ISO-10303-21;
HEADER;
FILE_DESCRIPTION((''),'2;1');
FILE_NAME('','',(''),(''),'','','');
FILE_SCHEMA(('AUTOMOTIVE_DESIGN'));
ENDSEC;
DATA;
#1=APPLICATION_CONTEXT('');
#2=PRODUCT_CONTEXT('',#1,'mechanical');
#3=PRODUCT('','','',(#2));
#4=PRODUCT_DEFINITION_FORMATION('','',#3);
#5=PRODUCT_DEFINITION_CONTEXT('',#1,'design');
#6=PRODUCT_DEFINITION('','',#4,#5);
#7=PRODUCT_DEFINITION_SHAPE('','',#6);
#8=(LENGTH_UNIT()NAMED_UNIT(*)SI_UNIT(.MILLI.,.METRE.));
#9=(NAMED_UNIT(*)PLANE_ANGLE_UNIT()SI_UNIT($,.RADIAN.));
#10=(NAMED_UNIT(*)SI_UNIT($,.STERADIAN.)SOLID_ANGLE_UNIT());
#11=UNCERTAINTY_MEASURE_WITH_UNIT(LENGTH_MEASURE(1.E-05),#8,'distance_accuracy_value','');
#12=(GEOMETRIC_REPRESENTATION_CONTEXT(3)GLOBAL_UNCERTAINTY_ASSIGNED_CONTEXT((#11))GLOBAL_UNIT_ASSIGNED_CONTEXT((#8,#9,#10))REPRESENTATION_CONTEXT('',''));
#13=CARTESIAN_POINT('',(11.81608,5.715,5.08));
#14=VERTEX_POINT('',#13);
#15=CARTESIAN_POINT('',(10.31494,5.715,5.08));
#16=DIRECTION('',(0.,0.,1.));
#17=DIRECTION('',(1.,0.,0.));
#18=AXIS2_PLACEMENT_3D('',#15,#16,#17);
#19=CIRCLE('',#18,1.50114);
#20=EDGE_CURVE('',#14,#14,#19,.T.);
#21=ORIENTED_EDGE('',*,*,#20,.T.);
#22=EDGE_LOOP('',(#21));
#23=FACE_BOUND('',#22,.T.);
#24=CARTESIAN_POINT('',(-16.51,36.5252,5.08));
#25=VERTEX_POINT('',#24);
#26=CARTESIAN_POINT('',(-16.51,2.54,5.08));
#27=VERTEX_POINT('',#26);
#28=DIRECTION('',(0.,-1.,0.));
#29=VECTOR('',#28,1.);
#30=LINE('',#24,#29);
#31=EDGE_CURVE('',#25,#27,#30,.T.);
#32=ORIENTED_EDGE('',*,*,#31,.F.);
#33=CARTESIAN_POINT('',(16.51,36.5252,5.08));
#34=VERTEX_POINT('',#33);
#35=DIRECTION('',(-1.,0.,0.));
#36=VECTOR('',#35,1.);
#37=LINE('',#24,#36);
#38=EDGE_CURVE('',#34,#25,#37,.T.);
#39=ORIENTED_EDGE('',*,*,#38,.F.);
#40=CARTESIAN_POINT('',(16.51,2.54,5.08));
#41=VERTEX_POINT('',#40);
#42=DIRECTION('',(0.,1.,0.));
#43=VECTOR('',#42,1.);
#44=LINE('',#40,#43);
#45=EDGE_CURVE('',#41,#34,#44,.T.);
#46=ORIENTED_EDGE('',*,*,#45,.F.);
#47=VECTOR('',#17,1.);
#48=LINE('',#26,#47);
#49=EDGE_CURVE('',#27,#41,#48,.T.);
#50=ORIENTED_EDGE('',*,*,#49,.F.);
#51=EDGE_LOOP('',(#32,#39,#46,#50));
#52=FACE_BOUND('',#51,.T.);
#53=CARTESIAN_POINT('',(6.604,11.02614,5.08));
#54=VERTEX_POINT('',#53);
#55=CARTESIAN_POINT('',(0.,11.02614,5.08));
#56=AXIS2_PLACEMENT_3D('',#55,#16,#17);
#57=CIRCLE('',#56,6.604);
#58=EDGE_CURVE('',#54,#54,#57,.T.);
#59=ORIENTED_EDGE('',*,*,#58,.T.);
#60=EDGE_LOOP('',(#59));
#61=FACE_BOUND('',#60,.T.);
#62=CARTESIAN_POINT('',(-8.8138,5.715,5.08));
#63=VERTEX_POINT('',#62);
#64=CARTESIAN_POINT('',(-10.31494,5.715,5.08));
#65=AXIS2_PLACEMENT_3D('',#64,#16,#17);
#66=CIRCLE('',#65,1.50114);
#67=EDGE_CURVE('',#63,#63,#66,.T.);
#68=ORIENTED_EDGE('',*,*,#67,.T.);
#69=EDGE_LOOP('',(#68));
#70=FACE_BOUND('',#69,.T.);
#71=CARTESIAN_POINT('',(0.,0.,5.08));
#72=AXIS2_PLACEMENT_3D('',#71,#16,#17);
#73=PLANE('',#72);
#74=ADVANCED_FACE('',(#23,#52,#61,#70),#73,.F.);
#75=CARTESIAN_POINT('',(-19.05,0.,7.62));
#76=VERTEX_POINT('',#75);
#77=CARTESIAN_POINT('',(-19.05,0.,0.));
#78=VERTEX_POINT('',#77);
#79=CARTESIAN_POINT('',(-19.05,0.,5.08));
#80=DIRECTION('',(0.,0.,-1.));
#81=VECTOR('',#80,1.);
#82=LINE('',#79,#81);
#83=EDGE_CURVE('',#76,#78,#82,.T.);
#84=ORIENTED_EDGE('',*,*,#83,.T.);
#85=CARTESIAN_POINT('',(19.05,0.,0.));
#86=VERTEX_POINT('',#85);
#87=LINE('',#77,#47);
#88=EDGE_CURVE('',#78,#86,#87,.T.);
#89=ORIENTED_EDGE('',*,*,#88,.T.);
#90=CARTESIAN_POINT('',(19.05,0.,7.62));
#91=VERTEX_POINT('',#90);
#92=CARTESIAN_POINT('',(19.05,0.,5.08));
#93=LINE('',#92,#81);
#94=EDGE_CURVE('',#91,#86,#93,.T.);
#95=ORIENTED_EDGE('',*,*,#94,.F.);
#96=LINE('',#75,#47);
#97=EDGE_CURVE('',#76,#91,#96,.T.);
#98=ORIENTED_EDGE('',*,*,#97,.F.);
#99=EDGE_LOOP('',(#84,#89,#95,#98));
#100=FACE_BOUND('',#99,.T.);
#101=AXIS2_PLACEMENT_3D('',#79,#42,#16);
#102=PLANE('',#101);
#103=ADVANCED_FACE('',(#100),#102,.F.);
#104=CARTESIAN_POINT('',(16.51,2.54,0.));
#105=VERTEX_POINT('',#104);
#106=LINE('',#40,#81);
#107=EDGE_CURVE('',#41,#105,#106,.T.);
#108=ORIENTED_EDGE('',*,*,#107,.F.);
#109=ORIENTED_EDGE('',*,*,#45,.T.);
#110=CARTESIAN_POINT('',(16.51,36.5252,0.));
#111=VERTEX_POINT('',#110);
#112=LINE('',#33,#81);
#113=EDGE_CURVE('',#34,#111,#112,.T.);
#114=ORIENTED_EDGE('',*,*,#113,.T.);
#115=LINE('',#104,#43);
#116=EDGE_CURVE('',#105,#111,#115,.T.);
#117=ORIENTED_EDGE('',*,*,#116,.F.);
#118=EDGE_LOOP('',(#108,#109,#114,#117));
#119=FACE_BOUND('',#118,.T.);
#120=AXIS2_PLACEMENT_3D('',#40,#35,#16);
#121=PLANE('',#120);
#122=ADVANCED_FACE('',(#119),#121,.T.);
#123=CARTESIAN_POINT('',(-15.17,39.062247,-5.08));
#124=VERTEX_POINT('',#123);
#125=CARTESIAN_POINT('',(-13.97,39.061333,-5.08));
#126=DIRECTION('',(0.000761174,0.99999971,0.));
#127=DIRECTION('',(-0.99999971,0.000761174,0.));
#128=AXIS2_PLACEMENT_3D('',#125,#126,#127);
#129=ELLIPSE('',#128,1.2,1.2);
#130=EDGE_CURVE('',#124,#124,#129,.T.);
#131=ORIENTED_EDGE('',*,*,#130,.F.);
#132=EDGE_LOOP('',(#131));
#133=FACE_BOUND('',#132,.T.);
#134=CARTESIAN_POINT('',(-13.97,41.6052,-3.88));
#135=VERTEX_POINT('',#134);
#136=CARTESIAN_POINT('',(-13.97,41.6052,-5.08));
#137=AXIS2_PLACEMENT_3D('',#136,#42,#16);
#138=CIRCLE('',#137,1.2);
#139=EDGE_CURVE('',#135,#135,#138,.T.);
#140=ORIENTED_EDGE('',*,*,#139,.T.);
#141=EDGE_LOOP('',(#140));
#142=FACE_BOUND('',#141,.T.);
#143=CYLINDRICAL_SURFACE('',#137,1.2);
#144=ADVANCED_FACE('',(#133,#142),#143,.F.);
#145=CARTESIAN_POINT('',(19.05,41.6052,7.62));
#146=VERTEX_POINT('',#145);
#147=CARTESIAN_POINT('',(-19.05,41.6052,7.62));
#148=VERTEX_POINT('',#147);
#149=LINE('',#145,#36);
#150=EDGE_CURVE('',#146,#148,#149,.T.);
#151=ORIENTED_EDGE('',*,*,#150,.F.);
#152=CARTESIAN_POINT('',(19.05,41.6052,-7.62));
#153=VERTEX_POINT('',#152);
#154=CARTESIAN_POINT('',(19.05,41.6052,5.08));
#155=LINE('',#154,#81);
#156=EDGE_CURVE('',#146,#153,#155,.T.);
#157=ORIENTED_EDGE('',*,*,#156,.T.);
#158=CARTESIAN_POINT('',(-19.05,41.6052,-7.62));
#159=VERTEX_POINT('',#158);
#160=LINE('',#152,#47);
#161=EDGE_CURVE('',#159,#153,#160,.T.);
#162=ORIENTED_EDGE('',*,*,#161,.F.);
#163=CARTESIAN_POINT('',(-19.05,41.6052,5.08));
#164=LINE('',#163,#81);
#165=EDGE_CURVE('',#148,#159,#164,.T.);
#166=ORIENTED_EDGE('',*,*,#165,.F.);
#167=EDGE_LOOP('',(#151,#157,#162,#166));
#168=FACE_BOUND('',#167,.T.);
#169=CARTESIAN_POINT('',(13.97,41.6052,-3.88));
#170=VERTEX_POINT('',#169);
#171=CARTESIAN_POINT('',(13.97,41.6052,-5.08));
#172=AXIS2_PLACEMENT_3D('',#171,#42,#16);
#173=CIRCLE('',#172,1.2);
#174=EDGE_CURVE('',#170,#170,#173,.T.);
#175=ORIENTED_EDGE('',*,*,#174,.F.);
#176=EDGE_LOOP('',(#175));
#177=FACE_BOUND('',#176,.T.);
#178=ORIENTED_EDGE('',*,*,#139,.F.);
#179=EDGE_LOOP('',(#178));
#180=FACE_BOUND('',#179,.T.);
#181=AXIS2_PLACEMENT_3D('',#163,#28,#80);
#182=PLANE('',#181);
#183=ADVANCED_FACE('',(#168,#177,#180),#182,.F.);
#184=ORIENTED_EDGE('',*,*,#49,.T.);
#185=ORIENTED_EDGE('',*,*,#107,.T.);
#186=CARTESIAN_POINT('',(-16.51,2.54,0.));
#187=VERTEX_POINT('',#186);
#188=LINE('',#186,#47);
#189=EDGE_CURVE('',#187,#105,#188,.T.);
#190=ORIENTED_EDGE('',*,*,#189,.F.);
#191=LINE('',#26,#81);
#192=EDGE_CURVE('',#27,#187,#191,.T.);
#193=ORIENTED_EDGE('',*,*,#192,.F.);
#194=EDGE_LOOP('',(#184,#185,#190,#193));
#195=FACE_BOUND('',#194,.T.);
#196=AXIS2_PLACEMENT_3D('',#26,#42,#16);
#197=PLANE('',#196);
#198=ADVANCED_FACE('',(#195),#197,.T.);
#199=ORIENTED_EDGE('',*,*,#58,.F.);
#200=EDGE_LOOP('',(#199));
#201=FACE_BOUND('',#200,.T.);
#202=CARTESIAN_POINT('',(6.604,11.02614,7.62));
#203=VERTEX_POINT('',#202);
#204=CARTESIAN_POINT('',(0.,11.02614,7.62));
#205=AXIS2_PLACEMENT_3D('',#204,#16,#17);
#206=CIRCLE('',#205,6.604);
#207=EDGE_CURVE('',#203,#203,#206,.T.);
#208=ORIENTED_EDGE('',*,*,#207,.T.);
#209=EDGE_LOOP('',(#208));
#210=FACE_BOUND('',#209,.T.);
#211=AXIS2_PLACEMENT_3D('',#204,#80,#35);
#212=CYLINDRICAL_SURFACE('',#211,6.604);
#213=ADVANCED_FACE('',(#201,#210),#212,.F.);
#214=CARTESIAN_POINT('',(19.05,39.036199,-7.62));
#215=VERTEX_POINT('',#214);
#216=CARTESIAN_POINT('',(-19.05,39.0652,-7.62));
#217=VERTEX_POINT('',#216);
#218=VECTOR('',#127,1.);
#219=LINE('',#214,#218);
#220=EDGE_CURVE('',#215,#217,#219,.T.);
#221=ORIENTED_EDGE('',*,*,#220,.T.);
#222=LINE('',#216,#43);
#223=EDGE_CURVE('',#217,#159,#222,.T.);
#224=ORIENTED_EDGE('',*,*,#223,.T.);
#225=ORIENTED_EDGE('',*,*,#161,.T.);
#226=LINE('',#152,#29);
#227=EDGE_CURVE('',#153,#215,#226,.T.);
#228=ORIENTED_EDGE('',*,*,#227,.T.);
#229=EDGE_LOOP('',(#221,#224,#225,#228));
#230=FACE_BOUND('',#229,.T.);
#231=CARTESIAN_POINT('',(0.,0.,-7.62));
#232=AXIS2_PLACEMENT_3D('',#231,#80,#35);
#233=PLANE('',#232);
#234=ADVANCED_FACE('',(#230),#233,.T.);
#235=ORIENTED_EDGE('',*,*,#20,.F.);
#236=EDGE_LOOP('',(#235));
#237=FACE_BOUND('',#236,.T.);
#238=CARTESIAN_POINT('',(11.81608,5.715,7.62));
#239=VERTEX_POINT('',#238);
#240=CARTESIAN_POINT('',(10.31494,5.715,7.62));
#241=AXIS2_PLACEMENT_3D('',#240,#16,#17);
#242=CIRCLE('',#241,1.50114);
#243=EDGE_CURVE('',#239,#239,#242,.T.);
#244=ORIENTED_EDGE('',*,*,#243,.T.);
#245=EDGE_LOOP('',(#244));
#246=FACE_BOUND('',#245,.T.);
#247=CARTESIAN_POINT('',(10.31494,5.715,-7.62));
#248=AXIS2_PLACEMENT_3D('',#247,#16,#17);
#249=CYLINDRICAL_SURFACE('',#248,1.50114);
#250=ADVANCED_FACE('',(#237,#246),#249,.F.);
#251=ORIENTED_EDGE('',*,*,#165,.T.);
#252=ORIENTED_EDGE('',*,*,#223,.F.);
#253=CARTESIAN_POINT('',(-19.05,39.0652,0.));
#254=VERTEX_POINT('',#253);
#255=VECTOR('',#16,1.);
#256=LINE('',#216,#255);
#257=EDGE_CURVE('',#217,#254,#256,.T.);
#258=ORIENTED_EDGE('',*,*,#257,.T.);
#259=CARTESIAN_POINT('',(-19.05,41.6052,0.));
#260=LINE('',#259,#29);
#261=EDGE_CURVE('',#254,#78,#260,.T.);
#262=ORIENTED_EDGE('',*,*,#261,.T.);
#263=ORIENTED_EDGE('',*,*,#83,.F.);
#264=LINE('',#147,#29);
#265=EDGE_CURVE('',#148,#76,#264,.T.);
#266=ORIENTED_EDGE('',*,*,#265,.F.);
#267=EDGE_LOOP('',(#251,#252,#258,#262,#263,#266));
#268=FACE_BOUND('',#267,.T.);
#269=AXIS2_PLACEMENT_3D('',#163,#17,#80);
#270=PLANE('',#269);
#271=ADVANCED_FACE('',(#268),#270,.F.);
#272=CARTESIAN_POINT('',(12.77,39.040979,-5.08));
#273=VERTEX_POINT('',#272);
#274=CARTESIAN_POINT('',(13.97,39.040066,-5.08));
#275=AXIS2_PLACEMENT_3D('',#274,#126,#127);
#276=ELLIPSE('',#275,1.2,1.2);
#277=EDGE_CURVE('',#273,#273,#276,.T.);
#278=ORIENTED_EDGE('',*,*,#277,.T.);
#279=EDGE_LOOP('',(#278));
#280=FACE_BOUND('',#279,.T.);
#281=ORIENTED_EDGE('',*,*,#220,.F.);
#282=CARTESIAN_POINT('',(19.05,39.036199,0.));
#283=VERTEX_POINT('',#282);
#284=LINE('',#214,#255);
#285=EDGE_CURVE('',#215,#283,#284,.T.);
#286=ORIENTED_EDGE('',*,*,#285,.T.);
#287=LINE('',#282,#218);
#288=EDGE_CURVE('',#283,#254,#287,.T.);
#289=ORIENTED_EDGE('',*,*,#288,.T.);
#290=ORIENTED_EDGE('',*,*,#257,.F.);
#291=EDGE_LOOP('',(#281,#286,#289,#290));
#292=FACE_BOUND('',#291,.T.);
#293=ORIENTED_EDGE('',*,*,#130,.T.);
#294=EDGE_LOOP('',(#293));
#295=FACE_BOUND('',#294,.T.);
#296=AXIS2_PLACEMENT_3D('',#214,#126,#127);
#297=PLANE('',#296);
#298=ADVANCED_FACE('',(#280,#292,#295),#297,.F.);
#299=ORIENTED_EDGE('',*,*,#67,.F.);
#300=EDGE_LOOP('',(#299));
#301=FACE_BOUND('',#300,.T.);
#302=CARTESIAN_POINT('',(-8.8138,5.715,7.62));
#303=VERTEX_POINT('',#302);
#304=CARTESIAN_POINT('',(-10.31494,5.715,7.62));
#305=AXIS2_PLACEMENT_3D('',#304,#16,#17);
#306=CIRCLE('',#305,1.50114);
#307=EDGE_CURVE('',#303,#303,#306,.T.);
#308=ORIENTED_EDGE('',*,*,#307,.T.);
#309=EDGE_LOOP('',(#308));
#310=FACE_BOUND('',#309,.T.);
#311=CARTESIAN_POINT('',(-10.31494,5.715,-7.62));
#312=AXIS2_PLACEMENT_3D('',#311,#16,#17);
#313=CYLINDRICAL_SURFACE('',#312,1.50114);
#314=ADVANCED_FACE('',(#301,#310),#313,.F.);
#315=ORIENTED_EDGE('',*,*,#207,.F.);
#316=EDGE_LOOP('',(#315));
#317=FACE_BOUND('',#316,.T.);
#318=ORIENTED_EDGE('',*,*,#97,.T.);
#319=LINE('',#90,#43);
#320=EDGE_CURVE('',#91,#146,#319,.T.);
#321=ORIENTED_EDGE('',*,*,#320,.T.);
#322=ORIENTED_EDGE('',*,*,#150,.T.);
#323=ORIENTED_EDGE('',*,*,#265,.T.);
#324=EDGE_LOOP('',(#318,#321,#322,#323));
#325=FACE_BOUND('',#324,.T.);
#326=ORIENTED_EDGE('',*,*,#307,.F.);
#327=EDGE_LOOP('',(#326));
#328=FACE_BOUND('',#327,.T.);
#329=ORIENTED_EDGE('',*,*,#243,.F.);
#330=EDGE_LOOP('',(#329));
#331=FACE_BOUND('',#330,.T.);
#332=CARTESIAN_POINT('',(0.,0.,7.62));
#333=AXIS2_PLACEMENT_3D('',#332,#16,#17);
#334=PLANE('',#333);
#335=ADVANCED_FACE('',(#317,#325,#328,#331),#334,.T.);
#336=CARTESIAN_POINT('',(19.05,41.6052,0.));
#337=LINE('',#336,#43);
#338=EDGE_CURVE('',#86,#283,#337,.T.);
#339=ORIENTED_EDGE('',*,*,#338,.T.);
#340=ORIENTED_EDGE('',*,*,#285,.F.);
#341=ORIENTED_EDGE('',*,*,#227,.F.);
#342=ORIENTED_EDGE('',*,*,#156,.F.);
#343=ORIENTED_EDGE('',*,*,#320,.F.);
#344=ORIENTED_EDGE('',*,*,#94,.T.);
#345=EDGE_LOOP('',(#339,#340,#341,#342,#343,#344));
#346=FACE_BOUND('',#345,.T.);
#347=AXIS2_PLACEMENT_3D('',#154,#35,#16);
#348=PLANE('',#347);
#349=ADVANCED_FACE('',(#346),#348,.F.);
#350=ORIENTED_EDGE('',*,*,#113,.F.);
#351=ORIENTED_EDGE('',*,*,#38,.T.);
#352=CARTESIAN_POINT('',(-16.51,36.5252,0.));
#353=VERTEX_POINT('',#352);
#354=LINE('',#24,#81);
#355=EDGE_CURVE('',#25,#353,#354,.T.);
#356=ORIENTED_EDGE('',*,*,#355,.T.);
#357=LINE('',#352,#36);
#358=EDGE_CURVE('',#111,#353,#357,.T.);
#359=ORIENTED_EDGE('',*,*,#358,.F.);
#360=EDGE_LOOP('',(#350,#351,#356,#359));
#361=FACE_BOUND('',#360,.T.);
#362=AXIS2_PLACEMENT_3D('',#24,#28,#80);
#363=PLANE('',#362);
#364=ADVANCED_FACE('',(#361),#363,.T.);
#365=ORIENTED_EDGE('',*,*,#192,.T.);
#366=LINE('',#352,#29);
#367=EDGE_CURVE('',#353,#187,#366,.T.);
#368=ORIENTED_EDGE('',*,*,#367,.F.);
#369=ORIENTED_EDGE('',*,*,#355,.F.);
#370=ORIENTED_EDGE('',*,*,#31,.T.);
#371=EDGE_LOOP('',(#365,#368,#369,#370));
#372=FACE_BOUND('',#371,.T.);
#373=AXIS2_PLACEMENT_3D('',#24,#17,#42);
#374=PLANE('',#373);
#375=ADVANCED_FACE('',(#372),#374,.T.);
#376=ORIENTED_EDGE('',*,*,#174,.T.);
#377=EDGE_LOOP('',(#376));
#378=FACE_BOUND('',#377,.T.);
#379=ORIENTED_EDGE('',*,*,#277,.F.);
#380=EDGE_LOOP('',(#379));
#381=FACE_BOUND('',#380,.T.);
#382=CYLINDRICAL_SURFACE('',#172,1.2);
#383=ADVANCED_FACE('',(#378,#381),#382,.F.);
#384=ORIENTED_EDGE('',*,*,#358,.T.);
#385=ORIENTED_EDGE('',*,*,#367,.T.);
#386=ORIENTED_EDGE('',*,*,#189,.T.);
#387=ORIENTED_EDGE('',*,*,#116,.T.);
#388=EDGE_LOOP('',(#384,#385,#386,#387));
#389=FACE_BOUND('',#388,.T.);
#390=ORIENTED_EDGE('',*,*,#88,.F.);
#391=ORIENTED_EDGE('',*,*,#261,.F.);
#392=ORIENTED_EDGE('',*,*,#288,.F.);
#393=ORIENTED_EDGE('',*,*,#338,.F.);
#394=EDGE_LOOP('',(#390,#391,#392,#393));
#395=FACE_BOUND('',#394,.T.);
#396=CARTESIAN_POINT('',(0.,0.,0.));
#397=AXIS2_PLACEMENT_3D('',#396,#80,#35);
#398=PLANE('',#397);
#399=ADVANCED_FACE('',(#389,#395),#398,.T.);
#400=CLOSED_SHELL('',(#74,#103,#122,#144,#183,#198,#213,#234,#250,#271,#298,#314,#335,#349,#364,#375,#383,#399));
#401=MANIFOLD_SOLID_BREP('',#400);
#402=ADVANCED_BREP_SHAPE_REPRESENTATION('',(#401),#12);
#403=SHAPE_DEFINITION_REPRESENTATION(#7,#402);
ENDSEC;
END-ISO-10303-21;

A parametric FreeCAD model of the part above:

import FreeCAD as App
import Part
import Sketcher
from FreeCAD import Vector
Q = App.Units.Quantity

doc = App.newDocument("Part")
body = doc.addObject("PartDesign::Body", "Body")

# Sketch on XY plane
sketch1 = doc.addObject("Sketcher::SketchObject", "Sketch")
body.addObject(sketch1)
sketch1.AttachmentSupport = (doc.XY_Plane, [""])
sketch1.MapMode = "FlatFace"
sketch1.addGeometry(Part.LineSegment(Vector(-19, 42, 0), Vector(-19, 0, 0)), False)
sketch1.addGeometry(Part.LineSegment(Vector(-19, 0, 0), Vector(19, 0, 0)), False)
sketch1.addGeometry(Part.LineSegment(Vector(19, 0, 0), Vector(19, 42, 0)), False)
sketch1.addGeometry(Part.LineSegment(Vector(19, 42, 0), Vector(-19, 42, 0)), False)
sketch1.addGeometry(Part.LineSegment(Vector(17, 3, 0), Vector(-17, 3, 0)), False)
sketch1.addGeometry(Part.LineSegment(Vector(-17, 3, 0), Vector(-17, 37, 0)), False)
sketch1.addGeometry(Part.LineSegment(Vector(-17, 37, 0), Vector(17, 37, 0)), False)
sketch1.addGeometry(Part.LineSegment(Vector(17, 37, 0), Vector(17, 3, 0)), False)
sketch1.addConstraint(Sketcher.Constraint("Coincident", 0, 2, 1, 1))
sketch1.addConstraint(Sketcher.Constraint("Coincident", 1, 2, 2, 1))
sketch1.addConstraint(Sketcher.Constraint("Coincident", 2, 2, 3, 1))
sketch1.addConstraint(Sketcher.Constraint("Coincident", 3, 2, 0, 1))
sketch1.addConstraint(Sketcher.Constraint("Coincident", 4, 2, 5, 1))
sketch1.addConstraint(Sketcher.Constraint("Coincident", 5, 2, 6, 1))
sketch1.addConstraint(Sketcher.Constraint("Coincident", 6, 2, 7, 1))
sketch1.addConstraint(Sketcher.Constraint("Coincident", 7, 2, 4, 1))
sketch1.addConstraint(Sketcher.Constraint("Vertical", 0))
sketch1.addConstraint(Sketcher.Constraint("Horizontal", 1))
sketch1.addConstraint(Sketcher.Constraint("Vertical", 2))
sketch1.addConstraint(Sketcher.Constraint("Horizontal", 3))
sketch1.addConstraint(Sketcher.Constraint("Horizontal", 4))
sketch1.addConstraint(Sketcher.Constraint("Vertical", 5))
sketch1.addConstraint(Sketcher.Constraint("Horizontal", 6))
sketch1.addConstraint(Sketcher.Constraint("Vertical", 7))
sketch1.addConstraint(Sketcher.Constraint("Symmetric", 0, 2, 1, 2, -1, 1))
sketch1.addConstraint(Sketcher.Constraint("DistanceX", 1, 1, 1, 2, Q("1.5 in")))
sketch1.addConstraint(Sketcher.Constraint("DistanceX", 4, 2, 4, 1, Q("1.3 in")))
sketch1.addConstraint(Sketcher.Constraint("DistanceY", -1, 1, 4, 2, Q("0.1 in")))
sketch1.addConstraint(Sketcher.Constraint("DistanceX", 0, 2, 4, 2, Q("0.1 in")))
sketch1.addConstraint(Sketcher.Constraint("DistanceY", 5, 2, 3, 2, Q("0.2 in")))
sketch1.addConstraint(Sketcher.Constraint("DistanceY", 0, 2, 0, 1, Q("1.638 in")))
pad1 = doc.addObject("PartDesign::Pad", "Pad")
body.addObject(pad1)
pad1.Profile = sketch1
pad1.Length = Q("0.2 in")

# Sketch on XY plane
sketch2 = doc.addObject("Sketcher::SketchObject", "Sketch001")
body.addObject(sketch2)
sketch2.AttachmentSupport = (doc.XY_Plane, [""])
sketch2.MapMode = "FlatFace"
sketch2.addGeometry(Part.LineSegment(Vector(-19.1, 41.6, 0), Vector(19.1, 41.6, 0)), False)
sketch2.addGeometry(Part.LineSegment(Vector(19.1, 41.6, 0), Vector(19.1, 39, 0)), False)
sketch2.addGeometry(Part.LineSegment(Vector(19.1, 39, 0), Vector(-19.1, 39.1, 0)), False)
sketch2.addGeometry(Part.LineSegment(Vector(-19.1, 39.1, 0), Vector(-19.1, 41.6, 0)), False)
sketch2.addConstraint(Sketcher.Constraint("Coincident", 0, 2, 1, 1))
sketch2.addConstraint(Sketcher.Constraint("Coincident", 1, 2, 2, 1))
sketch2.addConstraint(Sketcher.Constraint("Coincident", 2, 2, 3, 1))
sketch2.addConstraint(Sketcher.Constraint("Coincident", 3, 2, 0, 1))
sketch2.addConstraint(Sketcher.Constraint("Horizontal", 0))
sketch2.addConstraint(Sketcher.Constraint("Vertical", 1))
sketch2.addConstraint(Sketcher.Constraint("Vertical", 3))
sketch2.addConstraint(Sketcher.Constraint("DistanceX", 0, 1, 0, 2, Q("1.5 in")))
sketch2.addConstraint(Sketcher.Constraint("DistanceY", 3, 1, 3, 2, Q("0.1 in")))
sketch2.addConstraint(Sketcher.Constraint("DistanceX", -1, 1, 0, 2, Q("0.75 in")))
sketch2.addConstraint(Sketcher.Constraint("DistanceY", -1, 1, 0, 2, Q("1.638 in")))
sketch2.addConstraint(Sketcher.Constraint("DistanceY", 1, 2, 1, 1, 2.569001))
pad2 = doc.addObject("PartDesign::Pad", "Pad001")
body.addObject(pad2)
pad2.Profile = sketch2
pad2.Length = Q("0.3 in")
pad2.Reversed = True

# Sketch on XZ plane
sketch3 = doc.addObject("Sketcher::SketchObject", "Sketch002")
body.addObject(sketch3)
sketch3.AttachmentSupport = (doc.XZ_Plane, [""])
sketch3.MapMode = "FlatFace"
sketch3.AttachmentOffset = App.Placement(Vector(0, 0, -1.638 * 25.4), App.Rotation())
sketch3.addGeometry(Part.Circle(Vector(-14, -5.1, 0), Vector(0, 0, 1), 1.2), False)
sketch3.addGeometry(Part.Circle(Vector(14, -5.1, 0), Vector(0, 0, 1), 1.2), False)
sketch3.addConstraint(Sketcher.Constraint("Equal", 0, 1))
sketch3.addConstraint(Sketcher.Constraint("Symmetric", 0, 3, 1, 3, -2))
sketch3.addConstraint(Sketcher.Constraint("DistanceY", 0, 3, -1, 1, Q("0.2 in")))
sketch3.addConstraint(Sketcher.Constraint("DistanceX", 0, 3, 1, 3, Q("1.1 in")))
sketch3.addConstraint(Sketcher.Constraint("Diameter", 0, 2.4))
doc.recompute()
hole = doc.addObject("PartDesign::Hole", "Hole")
body.addObject(hole)
hole.Profile = sketch3
hole.ThreadType = "None"
hole.Diameter = 2.4
hole.DepthType = "ThroughAll"
hole.Reversed = True

# Sketch on XY plane
sketch4 = doc.addObject("Sketcher::SketchObject", "Sketch003")
body.addObject(sketch4)
sketch4.AttachmentSupport = (doc.XY_Plane, [""])
sketch4.MapMode = "FlatFace"
sketch4.AttachmentOffset = App.Placement(Vector(0, 0, 0.2 * 25.4), App.Rotation())
sketch4.addGeometry(Part.LineSegment(Vector(-19, 42, 0), Vector(-19, 0, 0)), False)
sketch4.addGeometry(Part.LineSegment(Vector(-19, 0, 0), Vector(19, 0, 0)), False)
sketch4.addGeometry(Part.LineSegment(Vector(19, 0, 0), Vector(19, 42, 0)), False)
sketch4.addGeometry(Part.LineSegment(Vector(19, 42, 0), Vector(-19, 42, 0)), False)
sketch4.addGeometry(Part.Circle(Vector(0, 11, 0), Vector(0, 0, 1), 7), False)
sketch4.addConstraint(Sketcher.Constraint("Coincident", 0, 2, 1, 1))
sketch4.addConstraint(Sketcher.Constraint("Coincident", 1, 2, 2, 1))
sketch4.addConstraint(Sketcher.Constraint("Coincident", 2, 2, 3, 1))
sketch4.addConstraint(Sketcher.Constraint("Coincident", 3, 2, 0, 1))
sketch4.addConstraint(Sketcher.Constraint("Vertical", 0))
sketch4.addConstraint(Sketcher.Constraint("Horizontal", 1))
sketch4.addConstraint(Sketcher.Constraint("Vertical", 2))
sketch4.addConstraint(Sketcher.Constraint("Horizontal", 3))
sketch4.addConstraint(Sketcher.Constraint("Symmetric", 0, 2, 1, 2, -1, 1))
sketch4.addConstraint(Sketcher.Constraint("PointOnObject", 4, 3, -2))
sketch4.addConstraint(Sketcher.Constraint("Diameter", 4, Q("0.52 in")))
sketch4.addConstraint(Sketcher.Constraint("DistanceX", 1, 1, 1, 2, Q("1.5 in")))
sketch4.addConstraint(Sketcher.Constraint("DistanceY", 0, 2, 0, 1, Q("1.638 in")))
sketch4.addConstraint(Sketcher.Constraint("DistanceY", -1, 1, 4, 3, Q("0.4341 in")))
pad3 = doc.addObject("PartDesign::Pad", "Pad002")
body.addObject(pad3)
pad3.Profile = sketch4
pad3.Length = Q("0.1 in")

# Sketch on XY plane
sketch5 = doc.addObject("Sketcher::SketchObject", "Sketch004")
body.addObject(sketch5)
sketch5.AttachmentSupport = (doc.XY_Plane, [""])
sketch5.MapMode = "FlatFace"
sketch5.AttachmentOffset = App.Placement(Vector(0, 0, 0.2 * 25.4), App.Rotation())
sketch5.addGeometry(Part.Circle(Vector(-10.3, 5.7, 0), Vector(0, 0, 1), 1.5), False)
sketch5.addGeometry(Part.Circle(Vector(10.3, 5.7, 0), Vector(0, 0, 1), 1.5), False)
sketch5.addConstraint(Sketcher.Constraint("Equal", 0, 1))
sketch5.addConstraint(Sketcher.Constraint("Symmetric", 0, 3, 1, 3, -2))
sketch5.addConstraint(Sketcher.Constraint("Diameter", 0, Q("0.1182 in")))
sketch5.addConstraint(Sketcher.Constraint("DistanceY", -1, 1, 0, 3, Q("0.225 in")))
sketch5.addConstraint(Sketcher.Constraint("DistanceX", 0, 3, -1, 1, Q("0.4061 in")))
pocket1 = doc.addObject("PartDesign::Pocket", "Pocket")
body.addObject(pocket1)
pocket1.Profile = sketch5
pocket1.Type = "ThroughAll"
pocket1.Midplane = True

doc.recompute()
